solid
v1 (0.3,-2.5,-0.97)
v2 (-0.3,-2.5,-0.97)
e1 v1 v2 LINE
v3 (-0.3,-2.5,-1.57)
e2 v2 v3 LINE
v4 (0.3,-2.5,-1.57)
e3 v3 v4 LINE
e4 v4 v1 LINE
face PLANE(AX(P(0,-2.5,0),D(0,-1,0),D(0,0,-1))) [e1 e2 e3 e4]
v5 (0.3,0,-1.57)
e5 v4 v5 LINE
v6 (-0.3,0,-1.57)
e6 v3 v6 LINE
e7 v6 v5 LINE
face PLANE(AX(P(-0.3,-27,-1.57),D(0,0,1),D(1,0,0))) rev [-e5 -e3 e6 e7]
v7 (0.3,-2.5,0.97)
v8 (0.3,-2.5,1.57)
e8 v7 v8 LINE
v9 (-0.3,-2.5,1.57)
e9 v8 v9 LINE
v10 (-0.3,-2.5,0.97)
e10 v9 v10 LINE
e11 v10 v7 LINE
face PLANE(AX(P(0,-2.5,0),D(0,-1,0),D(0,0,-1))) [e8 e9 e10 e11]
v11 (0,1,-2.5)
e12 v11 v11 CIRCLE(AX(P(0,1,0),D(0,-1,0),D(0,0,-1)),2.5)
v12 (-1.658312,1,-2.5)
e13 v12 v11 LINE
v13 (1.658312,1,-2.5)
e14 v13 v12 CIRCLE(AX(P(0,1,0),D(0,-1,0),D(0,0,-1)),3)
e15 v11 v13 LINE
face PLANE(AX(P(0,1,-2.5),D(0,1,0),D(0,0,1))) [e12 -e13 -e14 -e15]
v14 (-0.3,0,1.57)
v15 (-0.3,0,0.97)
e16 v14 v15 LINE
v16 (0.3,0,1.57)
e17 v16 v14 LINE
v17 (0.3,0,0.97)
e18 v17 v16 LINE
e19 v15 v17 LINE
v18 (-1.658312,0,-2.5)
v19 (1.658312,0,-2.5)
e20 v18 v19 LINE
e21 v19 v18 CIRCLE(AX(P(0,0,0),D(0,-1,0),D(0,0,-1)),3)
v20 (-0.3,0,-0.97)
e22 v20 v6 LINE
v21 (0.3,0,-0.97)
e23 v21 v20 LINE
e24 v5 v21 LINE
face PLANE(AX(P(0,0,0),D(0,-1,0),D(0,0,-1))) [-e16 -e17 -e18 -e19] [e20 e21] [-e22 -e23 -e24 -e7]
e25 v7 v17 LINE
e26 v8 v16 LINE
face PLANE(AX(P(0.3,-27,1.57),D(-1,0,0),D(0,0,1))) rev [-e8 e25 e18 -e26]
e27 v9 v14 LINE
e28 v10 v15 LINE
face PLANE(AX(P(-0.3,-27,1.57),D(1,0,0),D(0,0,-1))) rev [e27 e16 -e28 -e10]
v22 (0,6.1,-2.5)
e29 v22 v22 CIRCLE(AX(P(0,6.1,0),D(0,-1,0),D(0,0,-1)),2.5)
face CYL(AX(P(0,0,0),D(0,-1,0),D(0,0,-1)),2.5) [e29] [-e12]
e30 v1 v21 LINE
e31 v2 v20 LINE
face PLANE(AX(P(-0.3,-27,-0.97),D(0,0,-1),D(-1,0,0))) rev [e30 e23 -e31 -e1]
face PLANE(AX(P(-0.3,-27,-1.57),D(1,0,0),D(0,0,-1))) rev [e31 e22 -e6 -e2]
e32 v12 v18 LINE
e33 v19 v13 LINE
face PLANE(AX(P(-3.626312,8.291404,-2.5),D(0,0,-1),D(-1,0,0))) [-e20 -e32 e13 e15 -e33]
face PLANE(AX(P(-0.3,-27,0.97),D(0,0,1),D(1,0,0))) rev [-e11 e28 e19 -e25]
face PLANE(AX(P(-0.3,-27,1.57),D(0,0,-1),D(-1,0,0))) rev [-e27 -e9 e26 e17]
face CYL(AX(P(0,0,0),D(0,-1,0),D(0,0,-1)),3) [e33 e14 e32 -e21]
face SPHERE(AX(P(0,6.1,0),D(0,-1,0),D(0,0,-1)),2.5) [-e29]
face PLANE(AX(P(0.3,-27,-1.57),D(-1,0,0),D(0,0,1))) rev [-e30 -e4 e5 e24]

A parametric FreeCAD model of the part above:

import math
import FreeCAD as App
import Part
import Sketcher
from FreeCAD import Vector


def add_polygon(sketch, points):
    """Adds a closed chain of lines whose ends are joined by coincident constraints."""
    first, n = sketch.GeometryCount, len(points)
    for a, b in zip(points, points[1:] + points[:1]):
        sketch.addGeometry(Part.LineSegment(App.Vector(*a, 0), App.Vector(*b, 0)), False)
    for i in range(n):
        sketch.addConstraint(Sketcher.Constraint("Coincident", first + i, 2, first + (i + 1) % n, 1))

doc = App.newDocument("Part")
body = doc.addObject("PartDesign::Body", "Body")

sketch1 = body.newObject("Sketcher::SketchObject", "Sketch")
sketch1.AttachmentSupport = (doc.getObject("YZ_Plane"), [""])
sketch1.MapMode = "FlatFace"
sketch1.addGeometry(Part.LineSegment(Vector(8.6, 0, 0), Vector(0, 0, 0)), False)
sketch1.addGeometry(Part.LineSegment(Vector(0, 0, 0), Vector(0, -3, 0)), False)
sketch1.addGeometry(Part.LineSegment(Vector(0, -3, 0), Vector(1, -3, 0)), False)
sketch1.addGeometry(Part.LineSegment(Vector(1, -3, 0), Vector(1, -2.5, 0)), False)
sketch1.addGeometry(Part.LineSegment(Vector(1, -2.5, 0), Vector(6.1, -2.5, 0)), False)
sketch1.addGeometry(Part.ArcOfCircle(Part.Circle(Vector(6.1, 0, 0), Vector(0, 0, 1), 2.5), math.radians(-90), math.radians(0)), False)
sketch1.addConstraint(Sketcher.Constraint("Coincident", 0, 2, 1, 1))
sketch1.addConstraint(Sketcher.Constraint("Coincident", 1, 2, 2, 1))
sketch1.addConstraint(Sketcher.Constraint("Coincident", 2, 2, 3, 1))
sketch1.addConstraint(Sketcher.Constraint("Coincident", 3, 2, 4, 1))
sketch1.addConstraint(Sketcher.Constraint("Tangent", 4, 2, 5, 1))
sketch1.addConstraint(Sketcher.Constraint("Coincident", 5, 2, 0, 1))
sketch1.addConstraint(Sketcher.Constraint("Horizontal", 0))
sketch1.addConstraint(Sketcher.Constraint("Vertical", 1))
sketch1.addConstraint(Sketcher.Constraint("Horizontal", 2))
sketch1.addConstraint(Sketcher.Constraint("Vertical", 3))
sketch1.addConstraint(Sketcher.Constraint("Horizontal", 4))
sketch1.addConstraint(Sketcher.Constraint("Coincident", 0, 2, -1, 1))
sketch1.addConstraint(Sketcher.Constraint("PointOnObject", 5, 3, -1))
sketch1.addConstraint(Sketcher.Constraint("Radius", 5, 2.5))
sketch1.addConstraint(Sketcher.Constraint("DistanceX", 2, 1, 2, 2, 1.0))
sketch1.addConstraint(Sketcher.Constraint("DistanceY", 1, 2, 1, 1, 3.0))
sketch1.addConstraint(Sketcher.Constraint("DistanceX", 0, 2, 0, 1, 8.6))
revolution = body.newObject("PartDesign::Revolution", "Revolution")
revolution.Profile = sketch1
revolution.ReferenceAxis = (sketch1, ["H_Axis"])
revolution.Angle = 360

sketch2 = body.newObject("Sketcher::SketchObject", "Sketch001")
sketch2.AttachmentSupport = (doc.getObject("XZ_Plane"), [""])
sketch2.MapMode = "FlatFace"
add_polygon(sketch2, [(-3.6, -3.3), (-3.6, -2.5), (3.6, -2.5), (3.6, -3.3)])
sketch2.addConstraint(Sketcher.Constraint("Vertical", 0))
sketch2.addConstraint(Sketcher.Constraint("Horizontal", 1))
sketch2.addConstraint(Sketcher.Constraint("Vertical", 2))
sketch2.addConstraint(Sketcher.Constraint("Horizontal", 3))
sketch2.addConstraint(Sketcher.Constraint("DistanceY", 0, 2, -1, 1, 2.5))
sketch2.addConstraint(Sketcher.Constraint("DistanceY", 0, 1, 0, 2, 0.75102))
sketch2.addConstraint(Sketcher.Constraint("DistanceX", 1, 1, 1, 2, 7.252624))
sketch2.addConstraint(Sketcher.Constraint("DistanceX", 0, 2, -1, 1, 3.626312))
pocket1 = body.newObject("PartDesign::Pocket", "Pocket")
pocket1.Profile = sketch2
pocket1.Length = 1

sketch3 = body.newObject("Sketcher::SketchObject", "Sketch002")
sketch3.AttachmentSupport = (doc.getObject("XZ_Plane"), [""])
sketch3.MapMode = "FlatFace"
add_polygon(sketch3, [(-0.3, 1.6), (-0.3, 1), (0.3, 1), (0.3, 1.6)])
add_polygon(sketch3, [(-0.3, -1), (-0.3, -1.6), (0.3, -1.6), (0.3, -1)])
sketch3.addConstraint(Sketcher.Constraint("Vertical", 0))
sketch3.addConstraint(Sketcher.Constraint("Horizontal", 1))
sketch3.addConstraint(Sketcher.Constraint("Vertical", 2))
sketch3.addConstraint(Sketcher.Constraint("Horizontal", 3))
sketch3.addConstraint(Sketcher.Constraint("Vertical", 4))
sketch3.addConstraint(Sketcher.Constraint("Horizontal", 5))
sketch3.addConstraint(Sketcher.Constraint("Vertical", 6))
sketch3.addConstraint(Sketcher.Constraint("Horizontal", 7))
sketch3.addConstraint(Sketcher.Constraint("Symmetric", 2, 2, 4, 2, -1, 1))
sketch3.addConstraint(Sketcher.Constraint("Symmetric", 0, 2, 6, 2, -1, 1))
sketch3.addConstraint(Sketcher.Constraint("Vertical", 3, 2, 4, 2))
sketch3.addConstraint(Sketcher.Constraint("Equal", 7, 0))
sketch3.addConstraint(Sketcher.Constraint("DistanceX", 1, 1, 1, 2, 0.6))
sketch3.addConstraint(Sketcher.Constraint("DistanceY", -1, 1, 0, 2, 0.97))
pad1 = body.newObject("PartDesign::Pad", "Pad")
pad1.Profile = sketch3
pad1.Length = 27

sketch4 = body.newObject("Sketcher::SketchObject", "Sketch003")
sketch4.AttachmentSupport = (doc.getObject("XZ_Plane"), [""])
sketch4.MapMode = "FlatFace"
sketch4.AttachmentOffset = App.Placement(Vector(0, 0, 27), App.Rotation())
add_polygon(sketch4, [(-0.3, -1), (-0.3, -1.6), (0.3, -1.6), (0.3, -1)])
sketch4.addConstraint(Sketcher.Constraint("Vertical", 0))
sketch4.addConstraint(Sketcher.Constraint("Horizontal", 1))
sketch4.addConstraint(Sketcher.Constraint("Vertical", 2))
sketch4.addConstraint(Sketcher.Constraint("Horizontal", 3))
sketch4.addConstraint(Sketcher.Constraint("Equal", 3, 0))
sketch4.addConstraint(Sketcher.Constraint("DistanceX", 1, 1, 1, 2, 0.6))
sketch4.addConstraint(Sketcher.Constraint("DistanceX", 0, 2, -1, 1, 0.3))
sketch4.addConstraint(Sketcher.Constraint("DistanceY", 0, 2, -1, 1, 1.57))
pocket2 = body.newObject("PartDesign::Pocket", "Pocket001")
pocket2.Profile = sketch4
pocket2.Length = 1.5

sketch5 = body.newObject("Sketcher::SketchObject", "Sketch004")
sketch5.AttachmentSupport = (doc.getObject("XZ_Plane"), [""])
sketch5.MapMode = "FlatFace"
sketch5.AttachmentOffset = App.Placement(Vector(0, 0, 27), App.Rotation())
sketch5.addGeometry(Part.Circle(Vector(0, 0, 0), Vector(0, 0, 1), 4.6), False)
sketch5.addConstraint(Sketcher.Constraint("Coincident", 0, 3, -1, 1))
sketch5.addConstraint(Sketcher.Constraint("Diameter", 0, 9.249309))
pocket3 = body.newObject("PartDesign::Pocket", "Pocket002")
pocket3.Profile = sketch5
pocket3.Length = 24.5

doc.recompute()
